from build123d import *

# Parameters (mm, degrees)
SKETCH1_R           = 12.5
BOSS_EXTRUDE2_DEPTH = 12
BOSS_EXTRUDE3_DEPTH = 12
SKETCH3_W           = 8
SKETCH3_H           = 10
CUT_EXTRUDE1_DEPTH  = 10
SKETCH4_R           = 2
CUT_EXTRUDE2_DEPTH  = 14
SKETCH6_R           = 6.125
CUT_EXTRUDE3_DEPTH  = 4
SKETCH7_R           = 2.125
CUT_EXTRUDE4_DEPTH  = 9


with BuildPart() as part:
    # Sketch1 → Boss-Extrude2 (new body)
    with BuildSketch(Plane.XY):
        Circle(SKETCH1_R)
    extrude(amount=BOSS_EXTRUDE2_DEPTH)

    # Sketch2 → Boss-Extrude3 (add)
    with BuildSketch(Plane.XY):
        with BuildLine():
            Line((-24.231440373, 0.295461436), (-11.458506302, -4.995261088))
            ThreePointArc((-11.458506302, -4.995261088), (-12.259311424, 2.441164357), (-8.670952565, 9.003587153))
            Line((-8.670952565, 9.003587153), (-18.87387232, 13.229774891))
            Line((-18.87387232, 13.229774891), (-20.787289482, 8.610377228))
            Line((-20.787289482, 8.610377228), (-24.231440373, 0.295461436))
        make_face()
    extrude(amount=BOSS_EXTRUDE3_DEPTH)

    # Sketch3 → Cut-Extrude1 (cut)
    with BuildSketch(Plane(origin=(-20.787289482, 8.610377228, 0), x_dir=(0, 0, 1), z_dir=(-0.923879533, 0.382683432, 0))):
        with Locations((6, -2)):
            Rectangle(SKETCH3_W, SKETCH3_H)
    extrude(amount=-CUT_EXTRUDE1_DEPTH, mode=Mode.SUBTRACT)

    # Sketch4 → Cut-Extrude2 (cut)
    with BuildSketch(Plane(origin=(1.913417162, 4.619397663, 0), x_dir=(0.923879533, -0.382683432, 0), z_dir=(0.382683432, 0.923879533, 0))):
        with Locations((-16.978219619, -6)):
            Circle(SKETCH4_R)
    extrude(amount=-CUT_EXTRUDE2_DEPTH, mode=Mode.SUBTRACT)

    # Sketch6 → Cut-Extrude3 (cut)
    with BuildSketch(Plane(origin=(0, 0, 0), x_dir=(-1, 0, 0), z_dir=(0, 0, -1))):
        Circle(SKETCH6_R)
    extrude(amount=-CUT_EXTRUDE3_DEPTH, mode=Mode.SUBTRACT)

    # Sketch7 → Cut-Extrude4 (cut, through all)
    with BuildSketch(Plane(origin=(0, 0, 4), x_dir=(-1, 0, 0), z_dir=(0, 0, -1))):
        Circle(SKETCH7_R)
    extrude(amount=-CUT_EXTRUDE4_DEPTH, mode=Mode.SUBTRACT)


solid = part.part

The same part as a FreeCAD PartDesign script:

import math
import FreeCAD as App
import Part
import Sketcher

V = App.Vector
Q = App.Units.Quantity

doc = App.newDocument("Part")
body = doc.addObject("PartDesign::Body", "Body")

# Sketch on XY plane
sketch1 = doc.addObject("Sketcher::SketchObject", "Sketch")
body.addObject(sketch1)
sketch1.AttachmentSupport = (doc.XY_Plane, [""])
sketch1.MapMode = "FlatFace"
sketch1.addGeometry(Part.Circle(V(0, 0, 0), V(0, 0, 1), 12), False)
sketch1.addConstraint(Sketcher.Constraint("Coincident", 0, 3, -1, 1))
sketch1.addConstraint(Sketcher.Constraint("Diameter", 0, Q("25 mm")))
pad1 = doc.addObject("PartDesign::Pad", "Pad")
body.addObject(pad1)
pad1.Profile = sketch1
pad1.Length = 12

# Sketch on XY plane
sketch2 = doc.addObject("Sketcher::SketchObject", "Sketch001")
body.addObject(sketch2)
sketch2.AttachmentSupport = (doc.XY_Plane, [""])
sketch2.MapMode = "FlatFace"
sketch2.addGeometry(Part.LineSegment(V(-24, 0, 0), V(-11, -5, 0)), False)
sketch2.addGeometry(Part.ArcOfCircle(Part.Circle(V(0, 0, 0), V(0, 0, 1), 12), math.radians(134), math.radians(204)), False)
sketch2.addGeometry(Part.LineSegment(V(-9, 9, 0), V(-19, 13, 0)), False)
sketch2.addGeometry(Part.LineSegment(V(-19, 13, 0), V(-21, 9, 0)), False)
sketch2.addGeometry(Part.LineSegment(V(-21, 9, 0), V(-24, 0, 0)), False)
sketch2.addConstraint(Sketcher.Constraint("Coincident", 0, 2, 1, 2))
sketch2.addConstraint(Sketcher.Constraint("Coincident", 1, 1, 2, 1))
sketch2.addConstraint(Sketcher.Constraint("Coincident", 2, 2, 3, 1))
sketch2.addConstraint(Sketcher.Constraint("Coincident", 3, 2, 4, 1))
sketch2.addConstraint(Sketcher.Constraint("Coincident", 4, 2, 0, 1))
sketch2.addConstraint(Sketcher.Constraint("Coincident", 1, 3, -1, 1))
sketch2.addConstraint(Sketcher.Constraint("Parallel", 0, 2))
sketch2.addConstraint(Sketcher.Constraint("Perpendicular", 2, 3))
sketch2.addConstraint(Sketcher.Constraint("Parallel", 3, 4))
sketch2.addConstraint(Sketcher.Constraint("Radius", 1, Q("12.5 mm")))
sketch2.addConstraint(Sketcher.Constraint("Distance", 3, Q("5 mm")))
sketch2.addConstraint(Sketcher.Constraint("Distance", 4, Q("9 mm")))
sketch2.addConstraint(Sketcher.Constraint("Angle", 0, Q("-22.5 deg")))
sketch2.addConstraint(Sketcher.Constraint("Distance", 2, Q("11.043561 mm")))
sketch2.addConstraint(Sketcher.Constraint("DistanceY", 0, 2, -1, 1, Q("4.995261 mm")))
pad2 = doc.addObject("PartDesign::Pad", "Pad001")
body.addObject(pad2)
pad2.Profile = sketch2
pad2.Length = 12

# Sketch on an angled plane
sketch3 = doc.addObject("Sketcher::SketchObject", "Sketch002")
body.addObject(sketch3)
sketch3.Placement = App.Placement(V(-20.787289, 8.610377, 0), App.Rotation(V(0, 0, 1), V(0.382683432, 0.923879533, 0), V(-0.923879533, 0.382683432, 0), "ZXY"))
sketch3.addGeometry(Part.LineSegment(V(2, 3, 0), V(2, -7, 0)), False)
sketch3.addGeometry(Part.LineSegment(V(2, -7, 0), V(10, -7, 0)), False)
sketch3.addGeometry(Part.LineSegment(V(10, -7, 0), V(10, 3, 0)), False)
sketch3.addGeometry(Part.LineSegment(V(10, 3, 0), V(2, 3, 0)), False)
sketch3.addConstraint(Sketcher.Constraint("Coincident", 0, 2, 1, 1))
sketch3.addConstraint(Sketcher.Constraint("Coincident", 1, 2, 2, 1))
sketch3.addConstraint(Sketcher.Constraint("Coincident", 2, 2, 3, 1))
sketch3.addConstraint(Sketcher.Constraint("Coincident", 3, 2, 0, 1))
sketch3.addConstraint(Sketcher.Constraint("Vertical", 0))
sketch3.addConstraint(Sketcher.Constraint("Horizontal", 1))
sketch3.addConstraint(Sketcher.Constraint("Vertical", 2))
sketch3.addConstraint(Sketcher.Constraint("Horizontal", 3))
sketch3.addConstraint(Sketcher.Constraint("DistanceX", 1, 1, 1, 2, Q("8 mm")))
sketch3.addConstraint(Sketcher.Constraint("DistanceY", 0, 2, 0, 1, Q("10 mm")))
sketch3.addConstraint(Sketcher.Constraint("DistanceX", -1, 1, 0, 2, Q("2 mm")))
sketch3.addConstraint(Sketcher.Constraint("DistanceY", 0, 2, -1, 1, Q("7 mm")))
pocket1 = doc.addObject("PartDesign::Pocket", "Pocket")
body.addObject(pocket1)
pocket1.Profile = sketch3
pocket1.Length = 10

# Sketch on an angled plane
sketch4 = doc.addObject("Sketcher::SketchObject", "Sketch003")
body.addObject(sketch4)
sketch4.Placement = App.Placement(V(1.913417, 4.619398, 0), App.Rotation(V(0.923879533, -0.382683432, 0), V(0, 0, -1.000000001), V(0.382683432, 0.923879533, 0), "ZXY"))
sketch4.addGeometry(Part.Circle(V(-17, -6, 0), V(0, 0, 1), 2), False)
sketch4.addConstraint(Sketcher.Constraint("Diameter", 0, Q("4 mm")))
sketch4.addConstraint(Sketcher.Constraint("DistanceY", 0, 3, -1, 1, Q("6 mm")))
sketch4.addConstraint(Sketcher.Constraint("DistanceX", 0, 3, -1, 1, Q("16.97822 mm")))
pocket2 = doc.addObject("PartDesign::Pocket", "Pocket001")
body.addObject(pocket2)
pocket2.Profile = sketch4
pocket2.Length = 14

# Sketch on XY plane
sketch5 = doc.addObject("Sketcher::SketchObject", "Sketch004")
body.addObject(sketch5)
sketch5.AttachmentSupport = (doc.XY_Plane, [""])
sketch5.MapMode = "FlatFace"
sketch5.addGeometry(Part.Circle(V(0, 0, 0), V(0, 0, 1), 6), False)
sketch5.addConstraint(Sketcher.Constraint("Coincident", 0, 3, -1, 1))
sketch5.addConstraint(Sketcher.Constraint("Diameter", 0, Q("12.25 mm")))
pocket3 = doc.addObject("PartDesign::Pocket", "Pocket002")
body.addObject(pocket3)
pocket3.Profile = sketch5
pocket3.Length = 4
pocket3.Reversed = True

# Sketch on XY plane
sketch6 = doc.addObject("Sketcher::SketchObject", "Sketch005")
body.addObject(sketch6)
sketch6.AttachmentSupport = (doc.XY_Plane, [""])
sketch6.MapMode = "FlatFace"
sketch6.AttachmentOffset = App.Placement(V(0, 0, 4), App.Rotation())
sketch6.addGeometry(Part.Circle(V(0, 0, 0), V(0, 0, 1), 2.1), False)
sketch6.addConstraint(Sketcher.Constraint("Coincident", 0, 3, -1, 1))
sketch6.addConstraint(Sketcher.Constraint("Diameter", 0, Q("4.25 mm")))
pocket4 = doc.addObject("PartDesign::Pocket", "Pocket003")
body.addObject(pocket4)
pocket4.Profile = sketch6
pocket4.Type = "ThroughAll"
pocket4.Reversed = True

doc.recompute()
